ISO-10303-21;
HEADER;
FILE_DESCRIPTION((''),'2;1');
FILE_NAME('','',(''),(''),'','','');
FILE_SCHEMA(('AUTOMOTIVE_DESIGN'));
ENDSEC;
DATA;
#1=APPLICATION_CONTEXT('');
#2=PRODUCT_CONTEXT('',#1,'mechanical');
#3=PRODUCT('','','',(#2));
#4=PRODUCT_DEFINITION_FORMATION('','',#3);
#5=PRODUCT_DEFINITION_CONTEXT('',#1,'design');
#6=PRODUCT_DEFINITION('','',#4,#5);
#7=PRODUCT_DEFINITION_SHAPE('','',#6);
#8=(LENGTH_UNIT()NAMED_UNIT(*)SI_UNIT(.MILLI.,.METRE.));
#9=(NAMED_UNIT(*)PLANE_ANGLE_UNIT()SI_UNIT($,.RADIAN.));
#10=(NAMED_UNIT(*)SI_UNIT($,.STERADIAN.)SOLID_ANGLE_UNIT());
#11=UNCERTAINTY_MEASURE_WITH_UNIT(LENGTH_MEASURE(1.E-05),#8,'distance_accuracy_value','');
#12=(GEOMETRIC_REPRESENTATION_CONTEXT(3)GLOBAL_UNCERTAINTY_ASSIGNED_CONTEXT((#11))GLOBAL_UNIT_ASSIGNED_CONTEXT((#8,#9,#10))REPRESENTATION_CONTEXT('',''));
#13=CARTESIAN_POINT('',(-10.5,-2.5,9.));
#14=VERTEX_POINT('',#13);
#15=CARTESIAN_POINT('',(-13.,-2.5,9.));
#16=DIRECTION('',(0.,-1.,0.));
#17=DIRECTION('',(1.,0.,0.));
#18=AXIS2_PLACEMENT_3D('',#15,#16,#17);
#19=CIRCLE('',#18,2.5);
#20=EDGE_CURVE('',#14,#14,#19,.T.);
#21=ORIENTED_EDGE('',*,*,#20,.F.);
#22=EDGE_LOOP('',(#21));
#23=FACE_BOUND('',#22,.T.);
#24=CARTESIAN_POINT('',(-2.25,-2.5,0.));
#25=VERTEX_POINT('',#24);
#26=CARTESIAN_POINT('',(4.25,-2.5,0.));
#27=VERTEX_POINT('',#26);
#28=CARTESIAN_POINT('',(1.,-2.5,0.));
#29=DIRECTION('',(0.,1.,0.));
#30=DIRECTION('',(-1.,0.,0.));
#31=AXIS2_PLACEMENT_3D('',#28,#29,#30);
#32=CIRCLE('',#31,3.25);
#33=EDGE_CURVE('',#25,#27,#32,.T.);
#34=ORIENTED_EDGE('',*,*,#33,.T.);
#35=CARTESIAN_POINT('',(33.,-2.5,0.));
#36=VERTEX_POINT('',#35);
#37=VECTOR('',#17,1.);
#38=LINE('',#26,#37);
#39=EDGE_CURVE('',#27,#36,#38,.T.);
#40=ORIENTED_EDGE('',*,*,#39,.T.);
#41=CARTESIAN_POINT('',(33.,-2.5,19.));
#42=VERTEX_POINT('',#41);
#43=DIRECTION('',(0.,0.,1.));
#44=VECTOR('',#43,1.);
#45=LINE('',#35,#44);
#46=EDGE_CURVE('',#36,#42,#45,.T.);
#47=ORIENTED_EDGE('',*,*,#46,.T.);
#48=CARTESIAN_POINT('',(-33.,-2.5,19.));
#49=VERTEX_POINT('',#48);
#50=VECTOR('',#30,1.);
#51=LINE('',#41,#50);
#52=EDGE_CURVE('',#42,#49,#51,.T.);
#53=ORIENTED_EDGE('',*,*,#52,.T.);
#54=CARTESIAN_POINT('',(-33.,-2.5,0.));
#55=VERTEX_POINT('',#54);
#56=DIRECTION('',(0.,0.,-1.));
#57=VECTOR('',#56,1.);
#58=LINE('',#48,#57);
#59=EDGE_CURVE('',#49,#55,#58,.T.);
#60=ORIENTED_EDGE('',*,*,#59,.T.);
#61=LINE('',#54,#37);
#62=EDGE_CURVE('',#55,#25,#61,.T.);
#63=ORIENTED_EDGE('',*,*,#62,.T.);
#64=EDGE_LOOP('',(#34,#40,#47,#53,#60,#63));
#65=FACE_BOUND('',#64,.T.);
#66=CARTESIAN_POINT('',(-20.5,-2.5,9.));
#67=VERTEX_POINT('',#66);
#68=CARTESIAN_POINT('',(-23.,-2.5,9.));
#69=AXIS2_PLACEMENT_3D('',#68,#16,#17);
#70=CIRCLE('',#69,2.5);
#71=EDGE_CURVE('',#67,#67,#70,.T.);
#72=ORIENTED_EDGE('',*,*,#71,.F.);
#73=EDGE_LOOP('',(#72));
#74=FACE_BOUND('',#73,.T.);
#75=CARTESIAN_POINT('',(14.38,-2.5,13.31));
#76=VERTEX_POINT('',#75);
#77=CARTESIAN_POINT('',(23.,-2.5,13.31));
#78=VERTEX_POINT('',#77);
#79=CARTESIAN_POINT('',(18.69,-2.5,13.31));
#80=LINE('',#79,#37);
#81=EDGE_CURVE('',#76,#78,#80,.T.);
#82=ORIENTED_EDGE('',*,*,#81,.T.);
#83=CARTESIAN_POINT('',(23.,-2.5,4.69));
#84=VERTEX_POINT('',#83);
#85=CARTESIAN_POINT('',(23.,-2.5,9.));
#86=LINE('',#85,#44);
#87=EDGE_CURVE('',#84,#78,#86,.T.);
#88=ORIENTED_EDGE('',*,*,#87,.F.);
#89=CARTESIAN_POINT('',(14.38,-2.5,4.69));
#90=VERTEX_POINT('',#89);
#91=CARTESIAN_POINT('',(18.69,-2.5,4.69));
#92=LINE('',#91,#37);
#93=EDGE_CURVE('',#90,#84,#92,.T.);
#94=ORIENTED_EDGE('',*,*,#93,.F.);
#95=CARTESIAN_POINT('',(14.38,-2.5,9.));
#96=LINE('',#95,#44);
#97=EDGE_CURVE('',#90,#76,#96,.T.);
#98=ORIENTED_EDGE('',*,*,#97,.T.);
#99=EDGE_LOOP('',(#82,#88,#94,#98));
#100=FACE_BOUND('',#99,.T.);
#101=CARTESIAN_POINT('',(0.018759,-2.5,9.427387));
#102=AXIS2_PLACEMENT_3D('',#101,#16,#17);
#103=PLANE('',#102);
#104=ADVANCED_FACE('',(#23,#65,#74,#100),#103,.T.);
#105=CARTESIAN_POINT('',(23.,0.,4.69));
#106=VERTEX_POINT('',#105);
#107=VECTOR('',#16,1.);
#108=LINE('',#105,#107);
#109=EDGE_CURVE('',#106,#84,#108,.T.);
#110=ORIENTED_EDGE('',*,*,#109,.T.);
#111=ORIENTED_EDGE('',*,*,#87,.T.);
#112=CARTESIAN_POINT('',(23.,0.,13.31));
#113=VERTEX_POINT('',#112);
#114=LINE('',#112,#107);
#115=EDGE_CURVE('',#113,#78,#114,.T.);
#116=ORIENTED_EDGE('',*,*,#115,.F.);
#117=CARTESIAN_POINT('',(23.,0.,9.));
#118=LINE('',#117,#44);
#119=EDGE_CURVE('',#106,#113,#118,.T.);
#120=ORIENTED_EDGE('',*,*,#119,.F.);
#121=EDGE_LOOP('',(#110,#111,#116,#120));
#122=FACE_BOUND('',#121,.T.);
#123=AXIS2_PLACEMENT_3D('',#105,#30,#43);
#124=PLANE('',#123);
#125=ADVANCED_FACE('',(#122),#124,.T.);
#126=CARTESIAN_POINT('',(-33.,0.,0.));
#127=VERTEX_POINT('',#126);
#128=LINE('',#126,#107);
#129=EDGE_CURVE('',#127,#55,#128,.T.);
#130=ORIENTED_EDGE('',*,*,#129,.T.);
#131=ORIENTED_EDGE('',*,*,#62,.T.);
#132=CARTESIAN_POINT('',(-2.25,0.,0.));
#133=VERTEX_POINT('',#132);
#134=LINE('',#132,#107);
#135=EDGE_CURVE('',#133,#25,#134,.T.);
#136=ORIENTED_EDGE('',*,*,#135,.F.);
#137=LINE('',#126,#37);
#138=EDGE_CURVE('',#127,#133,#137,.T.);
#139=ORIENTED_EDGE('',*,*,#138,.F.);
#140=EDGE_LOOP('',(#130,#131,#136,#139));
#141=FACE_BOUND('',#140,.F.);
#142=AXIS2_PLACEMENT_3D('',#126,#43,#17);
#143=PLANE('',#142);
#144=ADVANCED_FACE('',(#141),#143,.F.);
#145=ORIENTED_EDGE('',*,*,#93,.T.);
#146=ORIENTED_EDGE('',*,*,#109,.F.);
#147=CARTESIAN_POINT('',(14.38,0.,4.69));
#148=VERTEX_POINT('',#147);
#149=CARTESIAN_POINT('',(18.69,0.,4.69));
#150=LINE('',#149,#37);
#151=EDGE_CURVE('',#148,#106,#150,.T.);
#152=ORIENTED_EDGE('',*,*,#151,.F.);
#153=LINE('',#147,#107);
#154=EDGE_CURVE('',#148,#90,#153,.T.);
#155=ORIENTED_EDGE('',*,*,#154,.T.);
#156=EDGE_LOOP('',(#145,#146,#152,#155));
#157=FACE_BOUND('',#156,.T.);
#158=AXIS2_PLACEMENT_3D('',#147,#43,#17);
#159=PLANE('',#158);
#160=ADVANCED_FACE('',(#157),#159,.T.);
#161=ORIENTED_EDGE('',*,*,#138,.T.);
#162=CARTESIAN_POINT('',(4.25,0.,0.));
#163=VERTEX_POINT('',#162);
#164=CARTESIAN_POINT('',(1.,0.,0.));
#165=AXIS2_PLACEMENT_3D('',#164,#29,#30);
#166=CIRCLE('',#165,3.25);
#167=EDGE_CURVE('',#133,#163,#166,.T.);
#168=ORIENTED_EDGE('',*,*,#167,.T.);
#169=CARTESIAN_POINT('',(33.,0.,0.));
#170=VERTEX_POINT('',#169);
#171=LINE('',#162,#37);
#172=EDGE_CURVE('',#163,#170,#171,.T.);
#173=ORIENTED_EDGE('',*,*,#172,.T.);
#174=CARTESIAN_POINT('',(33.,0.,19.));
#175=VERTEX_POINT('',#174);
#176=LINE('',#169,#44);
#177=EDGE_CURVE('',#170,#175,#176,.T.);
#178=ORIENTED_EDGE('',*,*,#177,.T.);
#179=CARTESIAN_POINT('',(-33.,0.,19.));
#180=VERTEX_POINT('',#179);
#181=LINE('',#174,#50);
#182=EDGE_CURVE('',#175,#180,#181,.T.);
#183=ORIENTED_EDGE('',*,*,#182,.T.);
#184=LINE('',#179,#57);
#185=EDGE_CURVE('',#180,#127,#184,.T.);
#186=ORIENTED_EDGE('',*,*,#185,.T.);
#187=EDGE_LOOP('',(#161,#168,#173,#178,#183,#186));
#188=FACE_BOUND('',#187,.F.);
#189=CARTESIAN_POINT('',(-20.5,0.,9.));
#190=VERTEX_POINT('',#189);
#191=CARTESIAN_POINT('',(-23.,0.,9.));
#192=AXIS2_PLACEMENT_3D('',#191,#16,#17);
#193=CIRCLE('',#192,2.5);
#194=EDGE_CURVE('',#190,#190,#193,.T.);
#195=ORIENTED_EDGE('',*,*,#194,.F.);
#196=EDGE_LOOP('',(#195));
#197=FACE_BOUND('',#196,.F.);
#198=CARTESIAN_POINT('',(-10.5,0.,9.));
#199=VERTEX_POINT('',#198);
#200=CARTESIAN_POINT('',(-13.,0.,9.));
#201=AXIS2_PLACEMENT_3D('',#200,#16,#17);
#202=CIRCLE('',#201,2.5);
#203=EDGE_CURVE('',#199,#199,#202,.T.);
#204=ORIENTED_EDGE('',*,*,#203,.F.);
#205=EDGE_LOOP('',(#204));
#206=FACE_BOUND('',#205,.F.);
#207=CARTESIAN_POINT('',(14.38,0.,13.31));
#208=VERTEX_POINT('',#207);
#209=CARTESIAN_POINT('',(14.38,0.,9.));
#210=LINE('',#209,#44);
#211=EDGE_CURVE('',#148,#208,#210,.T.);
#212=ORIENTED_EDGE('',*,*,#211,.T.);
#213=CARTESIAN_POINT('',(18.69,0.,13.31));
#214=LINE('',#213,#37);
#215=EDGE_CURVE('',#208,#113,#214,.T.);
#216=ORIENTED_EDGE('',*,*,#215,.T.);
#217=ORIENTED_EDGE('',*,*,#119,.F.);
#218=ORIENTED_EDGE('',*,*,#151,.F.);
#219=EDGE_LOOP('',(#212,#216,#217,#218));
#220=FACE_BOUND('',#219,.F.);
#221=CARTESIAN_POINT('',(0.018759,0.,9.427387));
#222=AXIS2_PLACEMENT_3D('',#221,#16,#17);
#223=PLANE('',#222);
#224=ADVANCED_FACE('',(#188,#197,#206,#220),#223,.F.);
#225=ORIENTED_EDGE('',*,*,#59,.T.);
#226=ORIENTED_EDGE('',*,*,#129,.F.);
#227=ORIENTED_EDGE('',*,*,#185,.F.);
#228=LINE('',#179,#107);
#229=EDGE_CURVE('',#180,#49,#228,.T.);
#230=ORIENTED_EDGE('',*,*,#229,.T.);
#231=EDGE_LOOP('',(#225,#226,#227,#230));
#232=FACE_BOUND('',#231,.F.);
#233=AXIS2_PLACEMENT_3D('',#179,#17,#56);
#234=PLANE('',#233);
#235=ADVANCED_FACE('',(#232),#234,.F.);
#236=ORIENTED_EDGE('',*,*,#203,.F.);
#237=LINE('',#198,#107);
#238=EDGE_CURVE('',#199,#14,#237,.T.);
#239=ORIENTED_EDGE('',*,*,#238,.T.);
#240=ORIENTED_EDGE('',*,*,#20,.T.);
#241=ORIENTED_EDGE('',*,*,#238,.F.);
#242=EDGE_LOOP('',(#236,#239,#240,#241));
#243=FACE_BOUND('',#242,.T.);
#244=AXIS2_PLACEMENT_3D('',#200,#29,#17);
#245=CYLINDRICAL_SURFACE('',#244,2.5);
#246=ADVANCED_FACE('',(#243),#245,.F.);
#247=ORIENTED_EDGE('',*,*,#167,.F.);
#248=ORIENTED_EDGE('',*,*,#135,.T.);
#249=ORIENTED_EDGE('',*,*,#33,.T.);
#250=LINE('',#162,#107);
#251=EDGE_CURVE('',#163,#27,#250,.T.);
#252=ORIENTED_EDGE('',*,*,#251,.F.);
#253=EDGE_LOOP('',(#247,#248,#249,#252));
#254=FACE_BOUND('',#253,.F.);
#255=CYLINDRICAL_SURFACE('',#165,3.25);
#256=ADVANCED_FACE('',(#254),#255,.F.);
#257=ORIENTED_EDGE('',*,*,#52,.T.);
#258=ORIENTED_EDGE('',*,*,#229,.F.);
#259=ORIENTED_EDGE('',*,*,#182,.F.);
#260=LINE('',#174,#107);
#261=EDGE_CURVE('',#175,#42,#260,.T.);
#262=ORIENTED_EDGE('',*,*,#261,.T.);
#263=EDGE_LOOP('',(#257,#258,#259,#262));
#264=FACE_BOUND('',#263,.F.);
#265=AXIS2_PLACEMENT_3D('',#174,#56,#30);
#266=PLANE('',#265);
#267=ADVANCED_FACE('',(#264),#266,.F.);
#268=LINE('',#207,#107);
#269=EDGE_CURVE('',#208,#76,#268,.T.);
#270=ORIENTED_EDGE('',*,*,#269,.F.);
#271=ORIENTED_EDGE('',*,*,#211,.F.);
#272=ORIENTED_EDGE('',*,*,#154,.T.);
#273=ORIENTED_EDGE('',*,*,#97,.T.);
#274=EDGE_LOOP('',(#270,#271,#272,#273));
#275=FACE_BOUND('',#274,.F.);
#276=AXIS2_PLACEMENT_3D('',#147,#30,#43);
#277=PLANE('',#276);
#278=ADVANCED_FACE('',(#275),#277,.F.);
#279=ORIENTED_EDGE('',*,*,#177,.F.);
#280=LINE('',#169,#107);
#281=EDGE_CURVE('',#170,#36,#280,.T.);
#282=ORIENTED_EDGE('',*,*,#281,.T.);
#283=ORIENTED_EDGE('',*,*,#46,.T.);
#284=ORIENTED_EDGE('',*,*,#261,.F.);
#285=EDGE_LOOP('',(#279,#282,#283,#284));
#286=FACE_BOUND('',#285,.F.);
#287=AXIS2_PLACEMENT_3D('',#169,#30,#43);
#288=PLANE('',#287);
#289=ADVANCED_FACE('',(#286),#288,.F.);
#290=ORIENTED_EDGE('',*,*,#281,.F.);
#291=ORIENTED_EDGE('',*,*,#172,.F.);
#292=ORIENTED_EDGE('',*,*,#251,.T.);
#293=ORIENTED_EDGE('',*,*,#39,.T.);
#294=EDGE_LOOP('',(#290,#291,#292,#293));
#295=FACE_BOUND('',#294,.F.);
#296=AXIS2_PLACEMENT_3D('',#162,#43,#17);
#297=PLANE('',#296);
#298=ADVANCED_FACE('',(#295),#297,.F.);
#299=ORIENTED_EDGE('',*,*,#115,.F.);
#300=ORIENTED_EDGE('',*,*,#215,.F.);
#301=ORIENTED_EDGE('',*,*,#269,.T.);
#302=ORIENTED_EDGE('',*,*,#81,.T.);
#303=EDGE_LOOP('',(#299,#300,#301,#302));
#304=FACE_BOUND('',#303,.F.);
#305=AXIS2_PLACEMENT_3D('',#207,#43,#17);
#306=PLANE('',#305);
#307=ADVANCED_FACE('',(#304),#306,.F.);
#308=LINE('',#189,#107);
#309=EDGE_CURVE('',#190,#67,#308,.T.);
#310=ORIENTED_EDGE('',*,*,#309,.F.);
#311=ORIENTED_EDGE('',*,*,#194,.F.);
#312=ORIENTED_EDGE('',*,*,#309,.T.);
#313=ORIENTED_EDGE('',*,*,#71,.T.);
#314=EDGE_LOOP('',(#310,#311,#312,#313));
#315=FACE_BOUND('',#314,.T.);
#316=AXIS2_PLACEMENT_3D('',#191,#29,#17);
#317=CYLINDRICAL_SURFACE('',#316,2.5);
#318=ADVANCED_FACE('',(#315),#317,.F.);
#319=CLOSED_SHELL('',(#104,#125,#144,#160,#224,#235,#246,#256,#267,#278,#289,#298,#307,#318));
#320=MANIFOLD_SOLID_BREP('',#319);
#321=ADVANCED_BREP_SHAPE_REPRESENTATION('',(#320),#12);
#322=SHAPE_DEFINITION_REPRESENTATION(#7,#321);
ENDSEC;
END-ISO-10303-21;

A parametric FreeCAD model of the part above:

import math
import FreeCAD as App
import Part
import Sketcher
from FreeCAD import Vector
Q = App.Units.Quantity

doc = App.newDocument("Part")
body = doc.addObject("PartDesign::Body", "Body")

# Sketch on XZ plane
sketch1 = body.newObject("Sketcher::SketchObject", "Sketch")
sketch1.AttachmentSupport = (doc.getObject("XZ_Plane"), [""])
sketch1.MapMode = "FlatFace"
sketch1.addGeometry([
    Part.LineSegment(Vector(-33, 19, 0), Vector(-33, 0, 0)),  # 0
    Part.LineSegment(Vector(-33, 0, 0), Vector(-2.2, 0, 0)),  # 1
    Part.ArcOfCircle(Part.Circle(Vector(1, 0, 0), Vector(0, 0, 1), 3.2), math.radians(0), math.radians(180)),  # 2
    Part.LineSegment(Vector(4.2, 0, 0), Vector(33, 0, 0)),  # 3
    Part.LineSegment(Vector(33, 0, 0), Vector(33, 19, 0)),  # 4
    Part.LineSegment(Vector(33, 19, 0), Vector(-33, 19, 0)),  # 5
    Part.Circle(Vector(-23, 9, 0), Vector(0, 0, 1), 2.5),  # 6
    Part.Circle(Vector(-13, 9, 0), Vector(0, 0, 1), 2.5),  # 7
    Part.LineSegment(Vector(23, 4.7, 0), Vector(14.4, 4.7, 0)),  # 8
    Part.LineSegment(Vector(14.4, 4.7, 0), Vector(14.4, 13.3, 0)),  # 9
    Part.LineSegment(Vector(14.4, 13.3, 0), Vector(23, 13.3, 0)),  # 10
    Part.LineSegment(Vector(23, 13.3, 0), Vector(23, 4.7, 0)),  # 11
], False)
sketch1.addConstraint([
    Sketcher.Constraint("Coincident", 0, 2, 1, 1),
    Sketcher.Constraint("Coincident", 1, 2, 2, 2),
    Sketcher.Constraint("Coincident", 2, 1, 3, 1),
    Sketcher.Constraint("Coincident", 3, 2, 4, 1),
    Sketcher.Constraint("Coincident", 4, 2, 5, 1),
    Sketcher.Constraint("Coincident", 5, 2, 0, 1),
    Sketcher.Constraint("Coincident", 8, 2, 9, 1),
    Sketcher.Constraint("Coincident", 9, 2, 10, 1),
    Sketcher.Constraint("Coincident", 10, 2, 11, 1),
    Sketcher.Constraint("Coincident", 11, 2, 8, 1),
    Sketcher.Constraint("Vertical", 0),
    Sketcher.Constraint("Horizontal", 1),
    Sketcher.Constraint("Horizontal", 3),
    Sketcher.Constraint("Vertical", 4),
    Sketcher.Constraint("Horizontal", 5),
    Sketcher.Constraint("Horizontal", 8),
    Sketcher.Constraint("Vertical", 9),
    Sketcher.Constraint("Horizontal", 10),
    Sketcher.Constraint("Vertical", 11),
    Sketcher.Constraint("Equal", 6, 7),
    Sketcher.Constraint("Symmetric", 0, 2, 3, 2, -1, 1),
    Sketcher.Constraint("PointOnObject", 2, 3, -1),
    Sketcher.Constraint("PointOnObject", 0, 2, -1),
    Sketcher.Constraint("Horizontal", 6, 3, 7, 3),
    Sketcher.Constraint("Equal", 10, 9),
    Sketcher.Constraint("Diameter", 6, Q("5 mm")),
    Sketcher.Constraint("DistanceX", 5, 2, 5, 1, Q("66 mm")),
    Sketcher.Constraint("DistanceY", 0, 2, 0, 1, Q("19 mm")),
    Sketcher.Constraint("Radius", 2, Q("3.25 mm")),
    Sketcher.Constraint("DistanceX", -1, 1, 2, 3, Q("1 mm")),
    Sketcher.Constraint("DistanceX", 6, 3, -1, 1, Q("23 mm")),
    Sketcher.Constraint("DistanceY", -1, 1, 6, 3, Q("9 mm")),
    Sketcher.Constraint("DistanceX", 7, 3, -1, 1, Q("13 mm")),
    Sketcher.Constraint("DistanceX", -1, 1, 10, 2, Q("23 mm")),
    Sketcher.Constraint("DistanceX", 8, 2, 8, 1, Q("8.62 mm")),
    Sketcher.Constraint("DistanceY", -1, 1, 8, 2, Q("4.69 mm")),
])
pad1 = body.newObject("PartDesign::Pad", "Pad")
pad1.Profile = sketch1
pad1.Length = 2.5

# Sketch on XZ plane
sketch2 = body.newObject("Sketcher::SketchObject", "Sketch001")
sketch2.AttachmentSupport = (doc.getObject("XZ_Plane"), [""])
sketch2.MapMode = "FlatFace"
sketch2.addGeometry([
    Part.LineSegment(Vector(-33, 19, 0), Vector(-33, 0, 0)),  # 0
    Part.LineSegment(Vector(-33, 0, 0), Vector(-2.2, 0, 0)),  # 1
    Part.ArcOfCircle(Part.Circle(Vector(1, 0, 0), Vector(0, 0, 1), 3.2), math.radians(0), math.radians(180)),  # 2
    Part.LineSegment(Vector(4.2, 0, 0), Vector(33, 0, 0)),  # 3
    Part.LineSegment(Vector(33, 0, 0), Vector(33, 19, 0)),  # 4
    Part.LineSegment(Vector(33, 19, 0), Vector(-33, 19, 0)),  # 5
    Part.Circle(Vector(-23, 9, 0), Vector(0, 0, 1), 2.5),  # 6
    Part.Circle(Vector(-13, 9, 0), Vector(0, 0, 1), 2.5),  # 7
    Part.LineSegment(Vector(23, 4.7, 0), Vector(14.4, 4.7, 0)),  # 8
    Part.LineSegment(Vector(14.4, 4.7, 0), Vector(14.4, 13.3, 0)),  # 9
    Part.LineSegment(Vector(14.4, 13.3, 0), Vector(23, 13.3, 0)),  # 10
    Part.LineSegment(Vector(23, 13.3, 0), Vector(23, 4.7, 0)),  # 11
], False)
sketch2.addConstraint([
    Sketcher.Constraint("Coincident", 0, 2, 1, 1),
    Sketcher.Constraint("Coincident", 1, 2, 2, 2),
    Sketcher.Constraint("Coincident", 2, 1, 3, 1),
    Sketcher.Constraint("Coincident", 3, 2, 4, 1),
    Sketcher.Constraint("Coincident", 4, 2, 5, 1),
    Sketcher.Constraint("Coincident", 5, 2, 0, 1),
    Sketcher.Constraint("Coincident", 8, 2, 9, 1),
    Sketcher.Constraint("Coincident", 9, 2, 10, 1),
    Sketcher.Constraint("Coincident", 10, 2, 11, 1),
    Sketcher.Constraint("Coincident", 11, 2, 8, 1),
    Sketcher.Constraint("Vertical", 0),
    Sketcher.Constraint("Horizontal", 1),
    Sketcher.Constraint("Horizontal", 3),
    Sketcher.Constraint("Vertical", 4),
    Sketcher.Constraint("Horizontal", 5),
    Sketcher.Constraint("Horizontal", 8),
    Sketcher.Constraint("Vertical", 9),
    Sketcher.Constraint("Horizontal", 10),
    Sketcher.Constraint("Vertical", 11),
    Sketcher.Constraint("Equal", 6, 7),
    Sketcher.Constraint("Symmetric", 0, 2, 3, 2, -1, 1),
    Sketcher.Constraint("PointOnObject", 2, 3, -1),
    Sketcher.Constraint("PointOnObject", 0, 2, -1),
    Sketcher.Constraint("Horizontal", 6, 3, 7, 3),
    Sketcher.Constraint("Equal", 10, 9),
    Sketcher.Constraint("Diameter", 6, Q("5 mm")),
    Sketcher.Constraint("DistanceX", 5, 2, 5, 1, Q("66 mm")),
    Sketcher.Constraint("DistanceY", 0, 2, 0, 1, Q("19 mm")),
    Sketcher.Constraint("Radius", 2, Q("3.25 mm")),
    Sketcher.Constraint("DistanceX", -1, 1, 2, 3, Q("1 mm")),
    Sketcher.Constraint("DistanceX", 6, 3, -1, 1, Q("23 mm")),
    Sketcher.Constraint("DistanceY", -1, 1, 6, 3, Q("9 mm")),
    Sketcher.Constraint("DistanceX", 7, 3, -1, 1, Q("13 mm")),
    Sketcher.Constraint("DistanceX", -1, 1, 10, 2, Q("23 mm")),
    Sketcher.Constraint("DistanceX", 8, 2, 8, 1, Q("8.62 mm")),
    Sketcher.Constraint("DistanceY", -1, 1, 8, 2, Q("4.69 mm")),
])
pad2 = body.newObject("PartDesign::Pad", "Pad001")
pad2.Profile = sketch2
pad2.Length = 2.5

doc.recompute()
